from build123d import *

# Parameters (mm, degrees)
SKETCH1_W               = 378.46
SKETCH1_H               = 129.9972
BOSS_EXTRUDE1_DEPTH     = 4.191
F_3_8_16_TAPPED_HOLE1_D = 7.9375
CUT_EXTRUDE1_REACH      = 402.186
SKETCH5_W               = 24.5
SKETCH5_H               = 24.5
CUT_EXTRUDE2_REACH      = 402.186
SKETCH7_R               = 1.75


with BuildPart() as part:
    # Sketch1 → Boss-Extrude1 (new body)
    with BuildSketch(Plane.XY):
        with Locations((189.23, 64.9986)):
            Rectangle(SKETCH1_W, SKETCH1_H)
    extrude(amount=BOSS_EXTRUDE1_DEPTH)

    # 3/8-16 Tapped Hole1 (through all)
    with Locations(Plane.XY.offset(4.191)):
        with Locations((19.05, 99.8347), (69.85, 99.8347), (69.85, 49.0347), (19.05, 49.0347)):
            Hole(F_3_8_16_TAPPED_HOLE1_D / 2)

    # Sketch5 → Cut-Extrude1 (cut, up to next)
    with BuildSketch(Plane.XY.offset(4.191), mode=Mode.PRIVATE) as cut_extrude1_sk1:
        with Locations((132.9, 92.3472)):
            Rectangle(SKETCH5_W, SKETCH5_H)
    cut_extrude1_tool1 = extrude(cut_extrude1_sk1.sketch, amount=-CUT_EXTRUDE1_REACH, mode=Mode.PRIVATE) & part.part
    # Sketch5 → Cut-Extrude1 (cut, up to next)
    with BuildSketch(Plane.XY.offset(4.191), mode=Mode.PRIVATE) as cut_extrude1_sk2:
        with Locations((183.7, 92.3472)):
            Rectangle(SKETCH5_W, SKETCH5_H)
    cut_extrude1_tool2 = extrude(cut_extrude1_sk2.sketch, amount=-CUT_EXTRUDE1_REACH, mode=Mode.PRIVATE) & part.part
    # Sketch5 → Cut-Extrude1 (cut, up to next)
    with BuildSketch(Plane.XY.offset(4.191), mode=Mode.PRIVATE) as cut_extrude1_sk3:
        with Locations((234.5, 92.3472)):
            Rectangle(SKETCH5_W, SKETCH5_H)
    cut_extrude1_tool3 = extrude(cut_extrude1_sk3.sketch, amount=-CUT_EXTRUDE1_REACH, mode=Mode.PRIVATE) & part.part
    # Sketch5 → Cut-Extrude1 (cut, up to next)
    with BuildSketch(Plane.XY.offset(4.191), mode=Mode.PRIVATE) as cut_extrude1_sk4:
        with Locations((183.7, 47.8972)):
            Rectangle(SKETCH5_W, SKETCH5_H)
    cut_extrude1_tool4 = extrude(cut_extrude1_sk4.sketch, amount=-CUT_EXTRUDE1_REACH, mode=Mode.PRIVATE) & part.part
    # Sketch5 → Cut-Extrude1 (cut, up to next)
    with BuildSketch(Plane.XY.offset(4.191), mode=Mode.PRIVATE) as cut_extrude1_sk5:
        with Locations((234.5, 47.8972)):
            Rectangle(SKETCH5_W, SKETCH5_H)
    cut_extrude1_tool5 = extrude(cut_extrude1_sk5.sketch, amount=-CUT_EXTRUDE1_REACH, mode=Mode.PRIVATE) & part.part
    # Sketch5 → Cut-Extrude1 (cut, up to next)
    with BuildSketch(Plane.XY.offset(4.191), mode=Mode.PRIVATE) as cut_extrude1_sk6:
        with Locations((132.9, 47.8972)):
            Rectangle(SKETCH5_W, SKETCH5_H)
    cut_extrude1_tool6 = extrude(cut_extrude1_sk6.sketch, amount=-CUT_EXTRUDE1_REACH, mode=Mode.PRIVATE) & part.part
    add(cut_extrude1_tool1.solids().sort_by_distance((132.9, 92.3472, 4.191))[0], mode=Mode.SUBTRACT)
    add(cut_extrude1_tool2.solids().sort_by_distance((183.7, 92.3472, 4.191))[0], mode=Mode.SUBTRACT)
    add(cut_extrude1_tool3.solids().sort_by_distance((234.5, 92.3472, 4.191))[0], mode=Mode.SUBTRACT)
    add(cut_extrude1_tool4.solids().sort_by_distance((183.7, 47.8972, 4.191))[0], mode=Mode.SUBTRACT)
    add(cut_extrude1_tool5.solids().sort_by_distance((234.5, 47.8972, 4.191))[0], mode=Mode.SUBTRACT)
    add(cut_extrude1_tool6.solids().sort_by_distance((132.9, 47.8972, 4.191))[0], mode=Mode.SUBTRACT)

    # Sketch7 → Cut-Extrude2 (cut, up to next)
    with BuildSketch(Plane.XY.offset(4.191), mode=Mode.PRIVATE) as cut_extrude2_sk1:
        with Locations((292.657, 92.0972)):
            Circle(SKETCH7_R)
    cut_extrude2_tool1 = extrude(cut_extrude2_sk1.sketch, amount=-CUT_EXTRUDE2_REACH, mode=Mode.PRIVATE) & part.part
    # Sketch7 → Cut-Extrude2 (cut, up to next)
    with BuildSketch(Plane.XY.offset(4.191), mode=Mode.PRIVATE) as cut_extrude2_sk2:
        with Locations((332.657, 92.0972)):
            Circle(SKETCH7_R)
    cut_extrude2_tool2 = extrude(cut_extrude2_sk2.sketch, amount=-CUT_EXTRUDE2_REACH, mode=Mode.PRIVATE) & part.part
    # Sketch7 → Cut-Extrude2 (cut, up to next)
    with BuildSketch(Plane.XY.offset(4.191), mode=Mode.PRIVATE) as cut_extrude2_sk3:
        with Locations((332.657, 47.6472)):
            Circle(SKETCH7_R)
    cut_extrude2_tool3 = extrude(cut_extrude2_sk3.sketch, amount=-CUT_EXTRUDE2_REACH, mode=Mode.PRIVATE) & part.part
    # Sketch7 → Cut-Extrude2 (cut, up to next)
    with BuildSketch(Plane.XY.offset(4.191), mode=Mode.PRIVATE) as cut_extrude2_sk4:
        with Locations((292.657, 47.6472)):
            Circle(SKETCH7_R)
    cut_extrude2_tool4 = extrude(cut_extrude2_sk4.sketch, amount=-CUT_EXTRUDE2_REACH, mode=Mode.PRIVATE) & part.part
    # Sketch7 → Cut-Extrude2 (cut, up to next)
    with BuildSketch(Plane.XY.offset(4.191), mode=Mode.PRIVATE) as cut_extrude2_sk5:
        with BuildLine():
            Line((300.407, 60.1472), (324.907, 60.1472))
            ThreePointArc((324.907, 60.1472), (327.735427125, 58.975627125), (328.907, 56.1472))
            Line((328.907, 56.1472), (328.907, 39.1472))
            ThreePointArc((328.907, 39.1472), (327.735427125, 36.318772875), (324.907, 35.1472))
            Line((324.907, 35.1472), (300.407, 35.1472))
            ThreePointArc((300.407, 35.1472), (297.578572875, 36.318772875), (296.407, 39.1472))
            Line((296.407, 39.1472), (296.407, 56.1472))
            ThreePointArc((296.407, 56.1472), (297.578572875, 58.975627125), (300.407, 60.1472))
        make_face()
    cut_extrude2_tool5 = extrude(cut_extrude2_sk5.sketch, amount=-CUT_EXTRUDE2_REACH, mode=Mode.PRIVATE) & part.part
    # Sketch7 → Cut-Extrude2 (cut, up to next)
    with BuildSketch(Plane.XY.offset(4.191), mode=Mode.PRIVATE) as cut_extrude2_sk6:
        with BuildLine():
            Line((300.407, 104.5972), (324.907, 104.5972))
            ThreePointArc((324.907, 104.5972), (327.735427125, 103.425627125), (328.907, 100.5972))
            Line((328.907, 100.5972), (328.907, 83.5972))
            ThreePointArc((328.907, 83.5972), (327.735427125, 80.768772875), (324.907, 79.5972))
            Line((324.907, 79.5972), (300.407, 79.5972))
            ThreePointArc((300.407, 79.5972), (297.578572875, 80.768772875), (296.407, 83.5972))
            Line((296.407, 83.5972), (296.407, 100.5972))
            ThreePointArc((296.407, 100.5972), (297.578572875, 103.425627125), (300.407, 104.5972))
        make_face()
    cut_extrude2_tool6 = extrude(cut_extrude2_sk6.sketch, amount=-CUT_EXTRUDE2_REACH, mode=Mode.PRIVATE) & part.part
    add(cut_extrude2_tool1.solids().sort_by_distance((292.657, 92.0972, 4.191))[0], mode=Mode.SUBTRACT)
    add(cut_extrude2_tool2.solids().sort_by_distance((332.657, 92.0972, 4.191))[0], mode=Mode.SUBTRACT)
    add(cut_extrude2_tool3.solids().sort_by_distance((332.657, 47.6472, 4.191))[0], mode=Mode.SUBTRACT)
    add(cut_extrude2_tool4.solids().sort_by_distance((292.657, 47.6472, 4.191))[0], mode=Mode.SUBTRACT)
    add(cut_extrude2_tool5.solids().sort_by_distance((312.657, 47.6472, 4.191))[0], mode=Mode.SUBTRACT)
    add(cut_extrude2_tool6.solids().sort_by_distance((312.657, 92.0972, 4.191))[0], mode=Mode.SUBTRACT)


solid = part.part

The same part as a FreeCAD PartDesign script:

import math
import FreeCAD as App
import Part
import Sketcher
Q = App.Units.Quantity


def add_polygon(sketch, points):
    """Adds a closed chain of lines whose ends are joined by coincident constraints."""
    first, n = sketch.GeometryCount, len(points)
    for a, b in zip(points, points[1:] + points[:1]):
        sketch.addGeometry(Part.LineSegment(App.Vector(*a, 0), App.Vector(*b, 0)), False)
    for i in range(n):
        sketch.addConstraint(Sketcher.Constraint("Coincident", first + i, 2, first + (i + 1) % n, 1))

doc = App.newDocument("Part")
body = doc.addObject("PartDesign::Body", "Body")

# Sketch on XY plane
sketch1 = doc.addObject("Sketcher::SketchObject", "Sketch")
body.addObject(sketch1)
sketch1.AttachmentSupport = (doc.XY_Plane, [""])
sketch1.MapMode = "FlatFace"
add_polygon(sketch1, [(0, 130), (0, 0), (378, 0), (378, 130)])  # lines 0-3
sketch1.addConstraint(Sketcher.Constraint("Vertical", 0))
sketch1.addConstraint(Sketcher.Constraint("Horizontal", 1))
sketch1.addConstraint(Sketcher.Constraint("Vertical", 2))
sketch1.addConstraint(Sketcher.Constraint("Horizontal", 3))
sketch1.addConstraint(Sketcher.Constraint("Coincident", 0, 2, -1, 1))
sketch1.addConstraint(Sketcher.Constraint("DistanceX", 1, 1, 1, 2, Q("378.46 mm")))
sketch1.addConstraint(Sketcher.Constraint("DistanceY", 0, 2, 0, 1, Q("129.9972 mm")))
pad1 = doc.addObject("PartDesign::Pad", "Pad")
body.addObject(pad1)
pad1.Profile = sketch1
pad1.Length = 4.191

# Sketch on XY plane
sketch2 = doc.addObject("Sketcher::SketchObject", "Sketch001")
body.addObject(sketch2)
sketch2.AttachmentSupport = (doc.XY_Plane, [""])
sketch2.MapMode = "FlatFace"
sketch2.AttachmentOffset = App.Placement(App.Vector(0, 0, 4.191), App.Rotation())
sketch2.addGeometry(Part.Circle(App.Vector(19.1, 99.8, 0), App.Vector(0, 0, 1), 4), False)
sketch2.addGeometry(Part.Circle(App.Vector(69.8, 99.8, 0), App.Vector(0, 0, 1), 4), False)
sketch2.addGeometry(Part.Circle(App.Vector(69.8, 49, 0), App.Vector(0, 0, 1), 4), False)
sketch2.addGeometry(Part.Circle(App.Vector(19.1, 49, 0), App.Vector(0, 0, 1), 4), False)
sketch2.addConstraint(Sketcher.Constraint("Equal", 0, 1))
sketch2.addConstraint(Sketcher.Constraint("Equal", 1, 2))
sketch2.addConstraint(Sketcher.Constraint("Equal", 2, 3))
sketch2.addConstraint(Sketcher.Constraint("Horizontal", 0, 3, 1, 3))
sketch2.addConstraint(Sketcher.Constraint("Horizontal", 2, 3, 3, 3))
sketch2.addConstraint(Sketcher.Constraint("Vertical", 1, 3, 2, 3))
sketch2.addConstraint(Sketcher.Constraint("Vertical", 0, 3, 3, 3))
sketch2.addConstraint(Sketcher.Constraint("Diameter", 0, Q("7.9375 mm")))
sketch2.addConstraint(Sketcher.Constraint("DistanceX", 0, 3, 1, 3, Q("50.8 mm")))
sketch2.addConstraint(Sketcher.Constraint("DistanceY", 2, 3, 1, 3, Q("50.8 mm")))
sketch2.addConstraint(Sketcher.Constraint("DistanceX", -1, 1, 0, 3, Q("19.05 mm")))
sketch2.addConstraint(Sketcher.Constraint("DistanceY", -1, 1, 0, 3, Q("99.8347 mm")))
doc.recompute()
hole = doc.addObject("PartDesign::Hole", "Hole")
body.addObject(hole)
hole.Profile = sketch2
hole.ThreadType = "None"
hole.Diameter = 7.9375
hole.DepthType = "ThroughAll"

# Sketch on XY plane
sketch3 = doc.addObject("Sketcher::SketchObject", "Sketch002")
body.addObject(sketch3)
sketch3.AttachmentSupport = (doc.XY_Plane, [""])
sketch3.MapMode = "FlatFace"
sketch3.AttachmentOffset = App.Placement(App.Vector(0, 0, 4.191), App.Rotation())
add_polygon(sketch3, [(121, 105), (121, 80), (145, 80), (145, 105)])  # lines 0-3
sketch3.addConstraint(Sketcher.Constraint("Vertical", 0))
sketch3.addConstraint(Sketcher.Constraint("Horizontal", 1))
sketch3.addConstraint(Sketcher.Constraint("Vertical", 2))
sketch3.addConstraint(Sketcher.Constraint("Horizontal", 3))
sketch3.addConstraint(Sketcher.Constraint("Equal", 3, 0))
sketch3.addConstraint(Sketcher.Constraint("DistanceX", 1, 1, 1, 2, Q("24.5 mm")))
sketch3.addConstraint(Sketcher.Constraint("DistanceX", -1, 1, 0, 2, Q("120.65 mm")))
sketch3.addConstraint(Sketcher.Constraint("DistanceY", -1, 1, 0, 2, Q("80.0972 mm")))
pocket1 = doc.addObject("PartDesign::Pocket", "Pocket")
body.addObject(pocket1)
pocket1.Profile = sketch3
pocket1.Type = "UpToFirst"

# Sketch on XY plane
sketch4 = doc.addObject("Sketcher::SketchObject", "Sketch003")
body.addObject(sketch4)
sketch4.AttachmentSupport = (doc.XY_Plane, [""])
sketch4.MapMode = "FlatFace"
sketch4.AttachmentOffset = App.Placement(App.Vector(0, 0, 4.191), App.Rotation())
add_polygon(sketch4, [(171, 105), (171, 80), (196, 80), (196, 105)])  # lines 0-3
sketch4.addConstraint(Sketcher.Constraint("Vertical", 0))
sketch4.addConstraint(Sketcher.Constraint("Horizontal", 1))
sketch4.addConstraint(Sketcher.Constraint("Vertical", 2))
sketch4.addConstraint(Sketcher.Constraint("Horizontal", 3))
sketch4.addConstraint(Sketcher.Constraint("Equal", 3, 0))
sketch4.addConstraint(Sketcher.Constraint("DistanceX", 1, 1, 1, 2, Q("24.5 mm")))
sketch4.addConstraint(Sketcher.Constraint("DistanceX", -1, 1, 0, 2, Q("171.45 mm")))
sketch4.addConstraint(Sketcher.Constraint("DistanceY", -1, 1, 0, 2, Q("80.0972 mm")))
pocket2 = doc.addObject("PartDesign::Pocket", "Pocket001")
body.addObject(pocket2)
pocket2.Profile = sketch4
pocket2.Type = "UpToFirst"

# Sketch on XY plane
sketch5 = doc.addObject("Sketcher::SketchObject", "Sketch004")
body.addObject(sketch5)
sketch5.AttachmentSupport = (doc.XY_Plane, [""])
sketch5.MapMode = "FlatFace"
sketch5.AttachmentOffset = App.Placement(App.Vector(0, 0, 4.191), App.Rotation())
add_polygon(sketch5, [(222, 105), (222, 80), (247, 80), (247, 105)])  # lines 0-3
sketch5.addConstraint(Sketcher.Constraint("Vertical", 0))
sketch5.addConstraint(Sketcher.Constraint("Horizontal", 1))
sketch5.addConstraint(Sketcher.Constraint("Vertical", 2))
sketch5.addConstraint(Sketcher.Constraint("Horizontal", 3))
sketch5.addConstraint(Sketcher.Constraint("Equal", 3, 0))
sketch5.addConstraint(Sketcher.Constraint("DistanceX", 1, 1, 1, 2, Q("24.5 mm")))
sketch5.addConstraint(Sketcher.Constraint("DistanceX", -1, 1, 0, 2, Q("222.25 mm")))
sketch5.addConstraint(Sketcher.Constraint("DistanceY", -1, 1, 0, 2, Q("80.0972 mm")))
pocket3 = doc.addObject("PartDesign::Pocket", "Pocket002")
body.addObject(pocket3)
pocket3.Profile = sketch5
pocket3.Type = "UpToFirst"

# Sketch on XY plane
sketch6 = doc.addObject("Sketcher::SketchObject", "Sketch005")
body.addObject(sketch6)
sketch6.AttachmentSupport = (doc.XY_Plane, [""])
sketch6.MapMode = "FlatFace"
sketch6.AttachmentOffset = App.Placement(App.Vector(0, 0, 4.191), App.Rotation())
add_polygon(sketch6, [(171, 60), (171, 36), (196, 36), (196, 60)])  # lines 0-3
sketch6.addConstraint(Sketcher.Constraint("Vertical", 0))
sketch6.addConstraint(Sketcher.Constraint("Horizontal", 1))
sketch6.addConstraint(Sketcher.Constraint("Vertical", 2))
sketch6.addConstraint(Sketcher.Constraint("Horizontal", 3))
sketch6.addConstraint(Sketcher.Constraint("Equal", 3, 0))
sketch6.addConstraint(Sketcher.Constraint("DistanceX", 1, 1, 1, 2, Q("24.5 mm")))
sketch6.addConstraint(Sketcher.Constraint("DistanceX", -1, 1, 0, 2, Q("171.45 mm")))
sketch6.addConstraint(Sketcher.Constraint("DistanceY", -1, 1, 0, 2, Q("35.6472 mm")))
pocket4 = doc.addObject("PartDesign::Pocket", "Pocket003")
body.addObject(pocket4)
pocket4.Profile = sketch6
pocket4.Type = "UpToFirst"

# Sketch on XY plane
sketch7 = doc.addObject("Sketcher::SketchObject", "Sketch006")
body.addObject(sketch7)
sketch7.AttachmentSupport = (doc.XY_Plane, [""])
sketch7.MapMode = "FlatFace"
sketch7.AttachmentOffset = App.Placement(App.Vector(0, 0, 4.191), App.Rotation())
add_polygon(sketch7, [(222, 60), (222, 36), (247, 36), (247, 60)])  # lines 0-3
sketch7.addConstraint(Sketcher.Constraint("Vertical", 0))
sketch7.addConstraint(Sketcher.Constraint("Horizontal", 1))
sketch7.addConstraint(Sketcher.Constraint("Vertical", 2))
sketch7.addConstraint(Sketcher.Constraint("Horizontal", 3))
sketch7.addConstraint(Sketcher.Constraint("Equal", 3, 0))
sketch7.addConstraint(Sketcher.Constraint("DistanceX", 1, 1, 1, 2, Q("24.5 mm")))
sketch7.addConstraint(Sketcher.Constraint("DistanceX", -1, 1, 0, 2, Q("222.25 mm")))
sketch7.addConstraint(Sketcher.Constraint("DistanceY", -1, 1, 0, 2, Q("35.6472 mm")))
pocket5 = doc.addObject("PartDesign::Pocket", "Pocket004")
body.addObject(pocket5)
pocket5.Profile = sketch7
pocket5.Type = "UpToFirst"

# Sketch on XY plane
sketch8 = doc.addObject("Sketcher::SketchObject", "Sketch007")
body.addObject(sketch8)
sketch8.AttachmentSupport = (doc.XY_Plane, [""])
sketch8.MapMode = "FlatFace"
sketch8.AttachmentOffset = App.Placement(App.Vector(0, 0, 4.191), App.Rotation())
add_polygon(sketch8, [(121, 60), (121, 36), (145, 36), (145, 60)])  # lines 0-3
sketch8.addConstraint(Sketcher.Constraint("Vertical", 0))
sketch8.addConstraint(Sketcher.Constraint("Horizontal", 1))
sketch8.addConstraint(Sketcher.Constraint("Vertical", 2))
sketch8.addConstraint(Sketcher.Constraint("Horizontal", 3))
sketch8.addConstraint(Sketcher.Constraint("Equal", 3, 0))
sketch8.addConstraint(Sketcher.Constraint("DistanceX", 1, 1, 1, 2, Q("24.5 mm")))
sketch8.addConstraint(Sketcher.Constraint("DistanceX", -1, 1, 0, 2, Q("120.65 mm")))
sketch8.addConstraint(Sketcher.Constraint("DistanceY", -1, 1, 0, 2, Q("35.6472 mm")))
pocket6 = doc.addObject("PartDesign::Pocket", "Pocket005")
body.addObject(pocket6)
pocket6.Profile = sketch8
pocket6.Type = "UpToFirst"

# Sketch on XY plane
sketch9 = doc.addObject("Sketcher::SketchObject", "Sketch008")
body.addObject(sketch9)
sketch9.AttachmentSupport = (doc.XY_Plane, [""])
sketch9.MapMode = "FlatFace"
sketch9.AttachmentOffset = App.Placement(App.Vector(0, 0, 4.191), App.Rotation())
sketch9.addGeometry(Part.Circle(App.Vector(292.7, 92.1, 0), App.Vector(0, 0, 1), 1.8), False)
sketch9.addConstraint(Sketcher.Constraint("Diameter", 0, Q("3.5 mm")))
sketch9.addConstraint(Sketcher.Constraint("DistanceX", -1, 1, 0, 3, Q("292.657 mm")))
sketch9.addConstraint(Sketcher.Constraint("DistanceY", -1, 1, 0, 3, Q("92.0972 mm")))
pocket7 = doc.addObject("PartDesign::Pocket", "Pocket006")
body.addObject(pocket7)
pocket7.Profile = sketch9
pocket7.Type = "UpToFirst"

# Sketch on XY plane
sketch10 = doc.addObject("Sketcher::SketchObject", "Sketch009")
body.addObject(sketch10)
sketch10.AttachmentSupport = (doc.XY_Plane, [""])
sketch10.MapMode = "FlatFace"
sketch10.AttachmentOffset = App.Placement(App.Vector(0, 0, 4.191), App.Rotation())
sketch10.addGeometry(Part.Circle(App.Vector(332.7, 92.1, 0), App.Vector(0, 0, 1), 1.8), False)
sketch10.addConstraint(Sketcher.Constraint("Diameter", 0, Q("3.5 mm")))
sketch10.addConstraint(Sketcher.Constraint("DistanceX", -1, 1, 0, 3, Q("332.657 mm")))
sketch10.addConstraint(Sketcher.Constraint("DistanceY", -1, 1, 0, 3, Q("92.0972 mm")))
pocket8 = doc.addObject("PartDesign::Pocket", "Pocket007")
body.addObject(pocket8)
pocket8.Profile = sketch10
pocket8.Type = "UpToFirst"

# Sketch on XY plane
sketch11 = doc.addObject("Sketcher::SketchObject", "Sketch010")
body.addObject(sketch11)
sketch11.AttachmentSupport = (doc.XY_Plane, [""])
sketch11.MapMode = "FlatFace"
sketch11.AttachmentOffset = App.Placement(App.Vector(0, 0, 4.191), App.Rotation())
sketch11.addGeometry(Part.Circle(App.Vector(332.7, 47.6, 0), App.Vector(0, 0, 1), 1.8), False)
sketch11.addConstraint(Sketcher.Constraint("Diameter", 0, Q("3.5 mm")))
sketch11.addConstraint(Sketcher.Constraint("DistanceX", -1, 1, 0, 3, Q("332.657 mm")))
sketch11.addConstraint(Sketcher.Constraint("DistanceY", -1, 1, 0, 3, Q("47.6472 mm")))
pocket9 = doc.addObject("PartDesign::Pocket", "Pocket008")
body.addObject(pocket9)
pocket9.Profile = sketch11
pocket9.Type = "UpToFirst"

# Sketch on XY plane
sketch12 = doc.addObject("Sketcher::SketchObject", "Sketch011")
body.addObject(sketch12)
sketch12.AttachmentSupport = (doc.XY_Plane, [""])
sketch12.MapMode = "FlatFace"
sketch12.AttachmentOffset = App.Placement(App.Vector(0, 0, 4.191), App.Rotation())
sketch12.addGeometry(Part.Circle(App.Vector(292.7, 47.6, 0), App.Vector(0, 0, 1), 1.8), False)
sketch12.addConstraint(Sketcher.Constraint("Diameter", 0, Q("3.5 mm")))
sketch12.addConstraint(Sketcher.Constraint("DistanceX", -1, 1, 0, 3, Q("292.657 mm")))
sketch12.addConstraint(Sketcher.Constraint("DistanceY", -1, 1, 0, 3, Q("47.6472 mm")))
pocket10 = doc.addObject("PartDesign::Pocket", "Pocket009")
body.addObject(pocket10)
pocket10.Profile = sketch12
pocket10.Type = "UpToFirst"

# Sketch on XY plane
sketch13 = doc.addObject("Sketcher::SketchObject", "Sketch012")
body.addObject(sketch13)
sketch13.AttachmentSupport = (doc.XY_Plane, [""])
sketch13.MapMode = "FlatFace"
sketch13.AttachmentOffset = App.Placement(App.Vector(0, 0, 4.191), App.Rotation())
sketch13.addGeometry(Part.LineSegment(App.Vector(324.9, 60.1, 0), App.Vector(300.4, 60.1, 0)), False)
sketch13.addGeometry(Part.ArcOfCircle(Part.Circle(App.Vector(300.4, 56.1, 0), App.Vector(0, 0, 1), 4), math.radians(90), math.radians(180)), False)
sketch13.addGeometry(Part.LineSegment(App.Vector(296.4, 56.1, 0), App.Vector(296.4, 39.1, 0)), False)
sketch13.addGeometry(Part.ArcOfCircle(Part.Circle(App.Vector(300.4, 39.1, 0), App.Vector(0, 0, 1), 4), math.radians(180), math.radians(270)), False)
sketch13.addGeometry(Part.LineSegment(App.Vector(300.4, 35.1, 0), App.Vector(324.9, 35.1, 0)), False)
sketch13.addGeometry(Part.ArcOfCircle(Part.Circle(App.Vector(324.9, 39.1, 0), App.Vector(0, 0, 1), 4), math.radians(-90), math.radians(0)), False)
sketch13.addGeometry(Part.LineSegment(App.Vector(328.9, 39.1, 0), App.Vector(328.9, 56.1, 0)), False)
sketch13.addGeometry(Part.ArcOfCircle(Part.Circle(App.Vector(324.9, 56.1, 0), App.Vector(0, 0, 1), 4), math.radians(0), math.radians(90)), False)
sketch13.addConstraint(Sketcher.Constraint("Tangent", 0, 2, 1, 1))
sketch13.addConstraint(Sketcher.Constraint("Tangent", 1, 2, 2, 1))
sketch13.addConstraint(Sketcher.Constraint("Tangent", 2, 2, 3, 1))
sketch13.addConstraint(Sketcher.Constraint("Tangent", 3, 2, 4, 1))
sketch13.addConstraint(Sketcher.Constraint("Tangent", 4, 2, 5, 1))
sketch13.addConstraint(Sketcher.Constraint("Tangent", 5, 2, 6, 1))
sketch13.addConstraint(Sketcher.Constraint("Tangent", 6, 2, 7, 1))
sketch13.addConstraint(Sketcher.Constraint("Tangent", 7, 2, 0, 1))
sketch13.addConstraint(Sketcher.Constraint("Horizontal", 0))
sketch13.addConstraint(Sketcher.Constraint("Vertical", 2))
sketch13.addConstraint(Sketcher.Constraint("Horizontal", 4))
sketch13.addConstraint(Sketcher.Constraint("Vertical", 6))
sketch13.addConstraint(Sketcher.Constraint("Equal", 1, 3))
sketch13.addConstraint(Sketcher.Constraint("Equal", 3, 5))
sketch13.addConstraint(Sketcher.Constraint("Equal", 5, 7))
sketch13.addConstraint(Sketcher.Constraint("Radius", 1, Q("4 mm")))
sketch13.addConstraint(Sketcher.Constraint("DistanceY", 2, 2, 2, 1, Q("17 mm")))
sketch13.addConstraint(Sketcher.Constraint("DistanceX", 0, 2, 0, 1, Q("24.5 mm")))
sketch13.addConstraint(Sketcher.Constraint("DistanceX", -1, 1, 1, 3, Q("300.407 mm")))
sketch13.addConstraint(Sketcher.Constraint("DistanceY", -1, 1, 1, 3, Q("56.1472 mm")))
pocket11 = doc.addObject("PartDesign::Pocket", "Pocket010")
body.addObject(pocket11)
pocket11.Profile = sketch13
pocket11.Type = "UpToFirst"

# Sketch on XY plane
sketch14 = doc.addObject("Sketcher::SketchObject", "Sketch013")
body.addObject(sketch14)
sketch14.AttachmentSupport = (doc.XY_Plane, [""])
sketch14.MapMode = "FlatFace"
sketch14.AttachmentOffset = App.Placement(App.Vector(0, 0, 4.191), App.Rotation())
sketch14.addGeometry(Part.LineSegment(App.Vector(324.9, 104.6, 0), App.Vector(300.4, 104.6, 0)), False)
sketch14.addGeometry(Part.ArcOfCircle(Part.Circle(App.Vector(300.4, 100.6, 0), App.Vector(0, 0, 1), 4), math.radians(90), math.radians(180)), False)
sketch14.addGeometry(Part.LineSegment(App.Vector(296.4, 100.6, 0), App.Vector(296.4, 83.6, 0)), False)
sketch14.addGeometry(Part.ArcOfCircle(Part.Circle(App.Vector(300.4, 83.6, 0), App.Vector(0, 0, 1), 4), math.radians(180), math.radians(270)), False)
sketch14.addGeometry(Part.LineSegment(App.Vector(300.4, 79.6, 0), App.Vector(324.9, 79.6, 0)), False)
sketch14.addGeometry(Part.ArcOfCircle(Part.Circle(App.Vector(324.9, 83.6, 0), App.Vector(0, 0, 1), 4), math.radians(-90), math.radians(0)), False)
sketch14.addGeometry(Part.LineSegment(App.Vector(328.9, 83.6, 0), App.Vector(328.9, 100.6, 0)), False)
sketch14.addGeometry(Part.ArcOfCircle(Part.Circle(App.Vector(324.9, 100.6, 0), App.Vector(0, 0, 1), 4), math.radians(0), math.radians(90)), False)
sketch14.addConstraint(Sketcher.Constraint("Tangent", 0, 2, 1, 1))
sketch14.addConstraint(Sketcher.Constraint("Tangent", 1, 2, 2, 1))
sketch14.addConstraint(Sketcher.Constraint("Tangent", 2, 2, 3, 1))
sketch14.addConstraint(Sketcher.Constraint("Tangent", 3, 2, 4, 1))
sketch14.addConstraint(Sketcher.Constraint("Tangent", 4, 2, 5, 1))
sketch14.addConstraint(Sketcher.Constraint("Tangent", 5, 2, 6, 1))
sketch14.addConstraint(Sketcher.Constraint("Tangent", 6, 2, 7, 1))
sketch14.addConstraint(Sketcher.Constraint("Tangent", 7, 2, 0, 1))
sketch14.addConstraint(Sketcher.Constraint("Horizontal", 0))
sketch14.addConstraint(Sketcher.Constraint("Vertical", 2))
sketch14.addConstraint(Sketcher.Constraint("Horizontal", 4))
sketch14.addConstraint(Sketcher.Constraint("Vertical", 6))
sketch14.addConstraint(Sketcher.Constraint("Equal", 1, 3))
sketch14.addConstraint(Sketcher.Constraint("Equal", 3, 5))
sketch14.addConstraint(Sketcher.Constraint("Equal", 5, 7))
sketch14.addConstraint(Sketcher.Constraint("Radius", 1, Q("4 mm")))
sketch14.addConstraint(Sketcher.Constraint("DistanceY", 2, 2, 2, 1, Q("17 mm")))
sketch14.addConstraint(Sketcher.Constraint("DistanceX", 0, 2, 0, 1, Q("24.5 mm")))
sketch14.addConstraint(Sketcher.Constraint("DistanceX", -1, 1, 1, 3, Q("300.407 mm")))
sketch14.addConstraint(Sketcher.Constraint("DistanceY", -1, 1, 1, 3, Q("100.5972 mm")))
pocket12 = doc.addObject("PartDesign::Pocket", "Pocket011")
body.addObject(pocket12)
pocket12.Profile = sketch14
pocket12.Type = "UpToFirst"

doc.recompute()
